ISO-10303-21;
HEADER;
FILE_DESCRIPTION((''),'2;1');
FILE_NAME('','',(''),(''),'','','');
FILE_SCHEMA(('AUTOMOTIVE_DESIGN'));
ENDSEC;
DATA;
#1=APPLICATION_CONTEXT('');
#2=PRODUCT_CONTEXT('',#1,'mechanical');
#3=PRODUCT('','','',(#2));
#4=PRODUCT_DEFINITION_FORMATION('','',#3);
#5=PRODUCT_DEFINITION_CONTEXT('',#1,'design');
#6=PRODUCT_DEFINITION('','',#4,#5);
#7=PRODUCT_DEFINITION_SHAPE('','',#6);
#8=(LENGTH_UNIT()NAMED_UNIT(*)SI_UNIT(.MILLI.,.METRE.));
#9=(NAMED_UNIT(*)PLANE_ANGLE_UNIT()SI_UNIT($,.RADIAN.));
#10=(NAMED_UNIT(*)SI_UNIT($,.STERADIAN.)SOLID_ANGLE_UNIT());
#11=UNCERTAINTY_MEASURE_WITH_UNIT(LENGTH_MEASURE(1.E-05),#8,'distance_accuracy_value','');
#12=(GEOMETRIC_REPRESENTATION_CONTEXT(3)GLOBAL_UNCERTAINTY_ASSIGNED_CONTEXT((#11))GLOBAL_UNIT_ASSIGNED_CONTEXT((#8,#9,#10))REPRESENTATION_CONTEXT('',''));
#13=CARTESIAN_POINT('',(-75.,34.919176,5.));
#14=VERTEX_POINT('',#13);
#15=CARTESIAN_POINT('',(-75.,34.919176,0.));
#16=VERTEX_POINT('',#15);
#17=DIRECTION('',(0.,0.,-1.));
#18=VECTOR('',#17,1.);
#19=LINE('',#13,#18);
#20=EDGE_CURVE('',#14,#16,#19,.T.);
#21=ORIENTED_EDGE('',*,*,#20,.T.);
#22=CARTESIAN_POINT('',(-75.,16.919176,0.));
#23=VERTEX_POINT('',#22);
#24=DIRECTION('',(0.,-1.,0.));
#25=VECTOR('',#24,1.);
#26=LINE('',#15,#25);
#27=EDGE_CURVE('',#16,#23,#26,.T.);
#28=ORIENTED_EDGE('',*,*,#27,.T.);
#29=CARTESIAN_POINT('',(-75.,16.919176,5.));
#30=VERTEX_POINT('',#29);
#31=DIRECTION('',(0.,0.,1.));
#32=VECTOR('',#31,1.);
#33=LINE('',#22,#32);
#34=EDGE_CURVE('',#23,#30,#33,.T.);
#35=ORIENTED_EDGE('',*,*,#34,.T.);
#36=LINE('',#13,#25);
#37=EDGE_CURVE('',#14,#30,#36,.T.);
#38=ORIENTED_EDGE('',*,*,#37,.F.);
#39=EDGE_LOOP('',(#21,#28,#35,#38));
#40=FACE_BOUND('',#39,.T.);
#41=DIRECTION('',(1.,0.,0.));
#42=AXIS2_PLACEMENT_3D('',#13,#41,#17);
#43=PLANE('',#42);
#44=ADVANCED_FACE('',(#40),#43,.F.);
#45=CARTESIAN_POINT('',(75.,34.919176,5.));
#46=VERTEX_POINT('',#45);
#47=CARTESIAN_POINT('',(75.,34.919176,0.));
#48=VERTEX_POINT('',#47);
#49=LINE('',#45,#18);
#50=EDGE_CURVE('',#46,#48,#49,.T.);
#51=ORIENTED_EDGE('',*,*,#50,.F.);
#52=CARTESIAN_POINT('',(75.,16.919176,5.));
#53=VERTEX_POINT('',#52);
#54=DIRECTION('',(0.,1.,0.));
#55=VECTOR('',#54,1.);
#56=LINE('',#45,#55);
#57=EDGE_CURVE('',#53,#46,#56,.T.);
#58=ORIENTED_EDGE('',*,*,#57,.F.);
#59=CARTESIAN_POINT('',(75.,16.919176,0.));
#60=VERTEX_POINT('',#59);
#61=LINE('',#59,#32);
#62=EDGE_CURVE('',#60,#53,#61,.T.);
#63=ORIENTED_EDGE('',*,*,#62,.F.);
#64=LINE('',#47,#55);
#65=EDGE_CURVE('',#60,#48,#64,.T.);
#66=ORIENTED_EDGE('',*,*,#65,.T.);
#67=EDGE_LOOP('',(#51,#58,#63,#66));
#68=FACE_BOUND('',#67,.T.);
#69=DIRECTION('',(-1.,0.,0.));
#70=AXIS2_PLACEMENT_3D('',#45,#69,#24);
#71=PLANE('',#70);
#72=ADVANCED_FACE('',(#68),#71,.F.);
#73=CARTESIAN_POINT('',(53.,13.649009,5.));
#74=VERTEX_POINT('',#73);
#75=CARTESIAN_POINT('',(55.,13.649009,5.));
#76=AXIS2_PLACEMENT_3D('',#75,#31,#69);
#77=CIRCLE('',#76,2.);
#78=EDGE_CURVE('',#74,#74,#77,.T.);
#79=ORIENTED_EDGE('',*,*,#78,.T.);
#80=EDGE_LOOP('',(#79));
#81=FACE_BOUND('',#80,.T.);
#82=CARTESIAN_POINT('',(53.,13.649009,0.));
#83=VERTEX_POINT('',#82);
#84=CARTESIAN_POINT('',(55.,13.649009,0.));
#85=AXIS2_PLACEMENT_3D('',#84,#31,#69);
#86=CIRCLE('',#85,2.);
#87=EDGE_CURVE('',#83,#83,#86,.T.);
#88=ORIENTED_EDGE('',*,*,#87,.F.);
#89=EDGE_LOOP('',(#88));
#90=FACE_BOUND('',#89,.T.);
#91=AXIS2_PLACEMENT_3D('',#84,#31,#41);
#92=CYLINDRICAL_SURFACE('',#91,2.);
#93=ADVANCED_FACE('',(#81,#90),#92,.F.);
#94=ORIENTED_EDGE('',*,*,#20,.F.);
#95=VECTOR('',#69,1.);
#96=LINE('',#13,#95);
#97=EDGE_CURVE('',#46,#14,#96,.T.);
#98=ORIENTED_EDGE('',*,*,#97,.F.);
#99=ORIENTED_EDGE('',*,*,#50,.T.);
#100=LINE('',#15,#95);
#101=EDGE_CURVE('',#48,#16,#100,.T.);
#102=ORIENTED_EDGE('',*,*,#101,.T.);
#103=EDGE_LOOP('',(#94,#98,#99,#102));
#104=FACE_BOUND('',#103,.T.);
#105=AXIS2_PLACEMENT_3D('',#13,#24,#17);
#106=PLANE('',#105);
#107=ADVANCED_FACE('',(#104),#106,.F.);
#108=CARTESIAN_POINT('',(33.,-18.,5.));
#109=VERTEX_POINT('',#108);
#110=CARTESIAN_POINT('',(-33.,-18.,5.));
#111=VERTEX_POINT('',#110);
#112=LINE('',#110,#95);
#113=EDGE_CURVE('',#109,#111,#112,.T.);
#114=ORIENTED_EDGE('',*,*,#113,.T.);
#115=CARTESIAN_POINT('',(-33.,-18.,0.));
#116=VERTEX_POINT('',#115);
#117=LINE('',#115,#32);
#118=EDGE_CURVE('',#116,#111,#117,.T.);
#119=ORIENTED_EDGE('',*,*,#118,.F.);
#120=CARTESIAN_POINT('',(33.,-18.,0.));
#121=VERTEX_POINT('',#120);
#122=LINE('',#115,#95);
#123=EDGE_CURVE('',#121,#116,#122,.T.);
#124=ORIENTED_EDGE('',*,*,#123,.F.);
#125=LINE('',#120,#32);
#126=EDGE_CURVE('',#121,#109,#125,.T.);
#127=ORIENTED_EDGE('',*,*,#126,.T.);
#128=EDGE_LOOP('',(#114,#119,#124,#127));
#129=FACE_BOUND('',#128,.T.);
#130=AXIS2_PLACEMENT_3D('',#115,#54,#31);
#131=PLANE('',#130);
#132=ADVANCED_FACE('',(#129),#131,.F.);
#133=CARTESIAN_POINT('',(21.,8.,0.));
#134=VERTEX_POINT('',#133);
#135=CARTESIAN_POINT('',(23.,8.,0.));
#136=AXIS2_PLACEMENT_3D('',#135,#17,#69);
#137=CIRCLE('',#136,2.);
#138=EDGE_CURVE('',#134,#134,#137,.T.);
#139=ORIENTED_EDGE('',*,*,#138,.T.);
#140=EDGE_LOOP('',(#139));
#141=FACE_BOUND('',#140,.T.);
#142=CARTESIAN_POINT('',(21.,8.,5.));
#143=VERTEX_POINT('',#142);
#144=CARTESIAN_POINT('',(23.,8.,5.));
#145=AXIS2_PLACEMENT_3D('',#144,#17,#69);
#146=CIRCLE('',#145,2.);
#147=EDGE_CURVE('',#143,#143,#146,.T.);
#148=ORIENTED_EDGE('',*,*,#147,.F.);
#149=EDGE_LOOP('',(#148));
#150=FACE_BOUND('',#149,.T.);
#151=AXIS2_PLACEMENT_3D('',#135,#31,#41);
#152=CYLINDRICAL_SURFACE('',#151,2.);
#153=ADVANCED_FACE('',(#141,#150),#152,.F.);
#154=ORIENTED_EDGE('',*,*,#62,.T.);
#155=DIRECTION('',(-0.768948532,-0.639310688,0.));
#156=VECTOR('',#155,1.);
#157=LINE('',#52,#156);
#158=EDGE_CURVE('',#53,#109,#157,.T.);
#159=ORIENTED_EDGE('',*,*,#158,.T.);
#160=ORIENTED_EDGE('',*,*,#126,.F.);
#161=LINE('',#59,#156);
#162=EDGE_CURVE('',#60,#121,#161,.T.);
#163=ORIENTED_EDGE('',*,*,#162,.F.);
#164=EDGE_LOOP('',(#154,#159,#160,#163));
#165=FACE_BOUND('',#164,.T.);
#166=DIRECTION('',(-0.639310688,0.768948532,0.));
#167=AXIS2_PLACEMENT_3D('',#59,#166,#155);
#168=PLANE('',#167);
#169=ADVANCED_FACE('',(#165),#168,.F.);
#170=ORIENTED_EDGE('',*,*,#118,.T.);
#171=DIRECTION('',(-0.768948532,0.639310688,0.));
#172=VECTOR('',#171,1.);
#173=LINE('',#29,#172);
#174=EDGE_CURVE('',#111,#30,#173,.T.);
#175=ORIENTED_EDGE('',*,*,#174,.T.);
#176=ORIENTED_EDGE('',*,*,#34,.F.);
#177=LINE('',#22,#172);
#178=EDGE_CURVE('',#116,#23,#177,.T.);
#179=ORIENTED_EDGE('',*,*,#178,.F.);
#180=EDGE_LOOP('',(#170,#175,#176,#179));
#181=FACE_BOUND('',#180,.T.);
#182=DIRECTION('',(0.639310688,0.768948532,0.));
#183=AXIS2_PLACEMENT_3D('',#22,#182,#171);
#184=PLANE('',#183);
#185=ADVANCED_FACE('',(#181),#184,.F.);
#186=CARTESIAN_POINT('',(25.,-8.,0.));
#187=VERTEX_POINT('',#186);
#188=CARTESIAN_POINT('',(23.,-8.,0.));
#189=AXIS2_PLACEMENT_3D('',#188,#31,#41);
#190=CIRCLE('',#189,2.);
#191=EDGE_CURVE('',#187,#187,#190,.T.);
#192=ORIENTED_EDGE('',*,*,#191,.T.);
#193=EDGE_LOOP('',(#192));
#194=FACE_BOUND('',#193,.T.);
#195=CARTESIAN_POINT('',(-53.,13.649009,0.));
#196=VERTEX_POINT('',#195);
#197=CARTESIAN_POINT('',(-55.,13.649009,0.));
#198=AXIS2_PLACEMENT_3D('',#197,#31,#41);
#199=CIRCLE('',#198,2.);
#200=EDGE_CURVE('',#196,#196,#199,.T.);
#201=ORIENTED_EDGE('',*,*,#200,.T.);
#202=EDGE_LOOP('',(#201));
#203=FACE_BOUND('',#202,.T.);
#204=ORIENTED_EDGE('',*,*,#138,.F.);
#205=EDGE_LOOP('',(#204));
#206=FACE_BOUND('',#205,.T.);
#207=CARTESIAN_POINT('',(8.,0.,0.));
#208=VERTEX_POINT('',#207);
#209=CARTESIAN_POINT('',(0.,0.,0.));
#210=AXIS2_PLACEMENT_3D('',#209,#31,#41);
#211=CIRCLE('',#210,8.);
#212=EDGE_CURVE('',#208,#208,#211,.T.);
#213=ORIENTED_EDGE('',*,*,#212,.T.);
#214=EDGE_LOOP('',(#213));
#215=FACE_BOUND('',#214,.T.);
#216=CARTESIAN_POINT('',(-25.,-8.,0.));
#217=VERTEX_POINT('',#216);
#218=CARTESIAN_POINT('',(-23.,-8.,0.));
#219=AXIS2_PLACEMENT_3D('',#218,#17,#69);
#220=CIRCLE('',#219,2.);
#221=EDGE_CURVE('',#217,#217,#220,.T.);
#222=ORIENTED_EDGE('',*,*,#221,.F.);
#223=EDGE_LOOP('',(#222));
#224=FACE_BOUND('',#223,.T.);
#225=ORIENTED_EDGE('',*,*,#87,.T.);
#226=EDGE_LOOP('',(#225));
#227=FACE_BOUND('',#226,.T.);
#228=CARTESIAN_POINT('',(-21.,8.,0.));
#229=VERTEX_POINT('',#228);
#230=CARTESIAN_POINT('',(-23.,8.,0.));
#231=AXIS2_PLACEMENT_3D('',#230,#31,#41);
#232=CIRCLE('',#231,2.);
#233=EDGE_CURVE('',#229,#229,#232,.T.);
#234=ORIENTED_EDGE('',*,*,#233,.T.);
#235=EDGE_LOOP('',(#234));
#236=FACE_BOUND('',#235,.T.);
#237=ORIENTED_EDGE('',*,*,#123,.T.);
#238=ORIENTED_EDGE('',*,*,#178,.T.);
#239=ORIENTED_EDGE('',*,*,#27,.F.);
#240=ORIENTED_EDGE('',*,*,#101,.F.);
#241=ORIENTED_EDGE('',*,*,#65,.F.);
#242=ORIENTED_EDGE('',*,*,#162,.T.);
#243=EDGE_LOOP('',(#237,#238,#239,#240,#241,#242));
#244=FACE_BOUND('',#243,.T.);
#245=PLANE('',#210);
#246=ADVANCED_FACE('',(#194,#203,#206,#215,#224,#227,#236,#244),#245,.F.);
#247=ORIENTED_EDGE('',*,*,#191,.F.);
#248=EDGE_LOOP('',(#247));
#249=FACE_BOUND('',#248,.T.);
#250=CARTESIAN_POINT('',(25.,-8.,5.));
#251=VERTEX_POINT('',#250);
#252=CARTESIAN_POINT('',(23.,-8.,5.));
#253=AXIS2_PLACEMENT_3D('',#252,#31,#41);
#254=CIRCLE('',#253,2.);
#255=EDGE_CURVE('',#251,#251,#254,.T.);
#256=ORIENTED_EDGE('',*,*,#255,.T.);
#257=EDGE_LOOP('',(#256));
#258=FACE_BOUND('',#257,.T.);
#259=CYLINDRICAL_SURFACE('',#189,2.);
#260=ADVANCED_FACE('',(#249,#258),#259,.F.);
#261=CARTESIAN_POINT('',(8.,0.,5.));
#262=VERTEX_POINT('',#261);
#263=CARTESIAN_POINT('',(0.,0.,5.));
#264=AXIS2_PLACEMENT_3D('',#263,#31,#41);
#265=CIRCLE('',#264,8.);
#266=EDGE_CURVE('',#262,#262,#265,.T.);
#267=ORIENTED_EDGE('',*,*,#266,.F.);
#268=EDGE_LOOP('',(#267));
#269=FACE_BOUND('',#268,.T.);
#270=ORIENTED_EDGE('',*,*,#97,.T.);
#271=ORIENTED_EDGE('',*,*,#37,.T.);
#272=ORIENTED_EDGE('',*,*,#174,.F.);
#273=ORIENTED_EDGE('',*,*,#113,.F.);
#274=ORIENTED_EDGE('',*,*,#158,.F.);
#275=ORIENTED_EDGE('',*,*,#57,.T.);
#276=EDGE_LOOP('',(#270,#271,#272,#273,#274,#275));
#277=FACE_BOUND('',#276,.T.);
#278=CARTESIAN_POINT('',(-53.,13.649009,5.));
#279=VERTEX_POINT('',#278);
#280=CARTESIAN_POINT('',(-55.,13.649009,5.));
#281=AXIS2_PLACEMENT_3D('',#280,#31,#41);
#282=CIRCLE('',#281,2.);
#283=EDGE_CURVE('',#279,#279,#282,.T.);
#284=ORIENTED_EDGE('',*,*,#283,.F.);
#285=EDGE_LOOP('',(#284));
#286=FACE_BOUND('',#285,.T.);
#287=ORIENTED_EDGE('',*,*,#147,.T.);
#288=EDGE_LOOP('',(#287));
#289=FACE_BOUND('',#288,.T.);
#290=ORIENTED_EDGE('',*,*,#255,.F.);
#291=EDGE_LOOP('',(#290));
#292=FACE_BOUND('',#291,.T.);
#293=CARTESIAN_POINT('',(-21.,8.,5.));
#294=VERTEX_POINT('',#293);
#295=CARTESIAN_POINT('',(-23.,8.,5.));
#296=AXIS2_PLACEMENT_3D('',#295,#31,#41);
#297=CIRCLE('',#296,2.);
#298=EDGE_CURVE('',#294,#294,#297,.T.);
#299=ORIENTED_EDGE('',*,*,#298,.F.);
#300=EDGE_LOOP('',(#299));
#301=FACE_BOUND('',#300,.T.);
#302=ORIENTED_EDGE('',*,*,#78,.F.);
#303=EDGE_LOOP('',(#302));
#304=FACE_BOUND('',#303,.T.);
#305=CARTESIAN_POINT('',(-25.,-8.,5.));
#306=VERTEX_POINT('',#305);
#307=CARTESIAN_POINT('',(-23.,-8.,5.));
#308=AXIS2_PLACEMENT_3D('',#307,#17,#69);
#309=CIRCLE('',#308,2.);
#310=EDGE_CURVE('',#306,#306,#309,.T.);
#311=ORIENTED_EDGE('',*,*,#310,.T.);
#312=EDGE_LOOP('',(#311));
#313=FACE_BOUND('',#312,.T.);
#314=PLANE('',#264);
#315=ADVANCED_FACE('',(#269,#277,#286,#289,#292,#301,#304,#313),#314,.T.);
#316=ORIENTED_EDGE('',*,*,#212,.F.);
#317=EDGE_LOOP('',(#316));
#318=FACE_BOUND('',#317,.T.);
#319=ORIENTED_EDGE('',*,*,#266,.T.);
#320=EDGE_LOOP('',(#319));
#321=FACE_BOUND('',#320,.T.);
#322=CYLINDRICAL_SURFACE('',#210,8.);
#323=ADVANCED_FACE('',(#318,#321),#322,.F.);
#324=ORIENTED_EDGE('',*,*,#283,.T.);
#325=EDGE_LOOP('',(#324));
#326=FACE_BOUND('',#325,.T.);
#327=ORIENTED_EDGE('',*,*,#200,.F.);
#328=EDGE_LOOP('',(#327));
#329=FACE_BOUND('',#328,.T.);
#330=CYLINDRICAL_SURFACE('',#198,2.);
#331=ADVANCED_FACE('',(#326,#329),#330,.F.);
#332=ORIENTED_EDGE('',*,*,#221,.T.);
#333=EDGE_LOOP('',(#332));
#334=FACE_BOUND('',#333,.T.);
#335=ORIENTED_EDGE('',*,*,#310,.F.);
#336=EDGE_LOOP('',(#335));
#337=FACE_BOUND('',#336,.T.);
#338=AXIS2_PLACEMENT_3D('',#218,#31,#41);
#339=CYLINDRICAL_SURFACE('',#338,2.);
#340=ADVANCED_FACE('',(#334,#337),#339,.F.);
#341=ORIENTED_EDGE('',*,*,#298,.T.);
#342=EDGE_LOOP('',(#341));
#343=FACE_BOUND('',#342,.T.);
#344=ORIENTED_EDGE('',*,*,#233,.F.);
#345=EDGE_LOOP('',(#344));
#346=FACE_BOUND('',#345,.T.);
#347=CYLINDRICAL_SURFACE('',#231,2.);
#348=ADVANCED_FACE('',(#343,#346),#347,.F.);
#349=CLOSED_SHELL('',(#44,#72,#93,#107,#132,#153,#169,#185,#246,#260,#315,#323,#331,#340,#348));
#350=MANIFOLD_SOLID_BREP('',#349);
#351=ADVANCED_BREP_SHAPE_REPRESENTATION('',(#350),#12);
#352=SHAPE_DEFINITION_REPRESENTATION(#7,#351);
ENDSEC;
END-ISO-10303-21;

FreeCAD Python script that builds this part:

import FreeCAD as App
import Part
import Sketcher

V = App.Vector

doc = App.newDocument("Part")
body = doc.addObject("PartDesign::Body", "Body")

# Sketch on XY plane
sketch1 = body.newObject("Sketcher::SketchObject", "Sketch")
sketch1.AttachmentSupport = (doc.getObject("XY_Plane"), [""])
sketch1.MapMode = "FlatFace"
sketch1.addGeometry([
    Part.LineSegment(V(-75, 35, 0), V(-75, -35, 0)),
    Part.LineSegment(V(-75, -35, 0), V(75, -35, 0)),
    Part.LineSegment(V(75, -35, 0), V(75, 35, 0)),
    Part.LineSegment(V(75, 35, 0), V(-75, 35, 0)),
], False)
sketch1.addConstraint([
    Sketcher.Constraint("Coincident", 0, 2, 1, 1),
    Sketcher.Constraint("Coincident", 1, 2, 2, 1),
    Sketcher.Constraint("Coincident", 2, 2, 3, 1),
    Sketcher.Constraint("Coincident", 3, 2, 0, 1),
    Sketcher.Constraint("Vertical", 0),
    Sketcher.Constraint("Horizontal", 1),
    Sketcher.Constraint("Vertical", 2),
    Sketcher.Constraint("Horizontal", 3),
    Sketcher.Constraint("DistanceX", 1, 1, 1, 2, 150.0),
    Sketcher.Constraint("DistanceY", 0, 2, 0, 1, 70.0),
    Sketcher.Constraint("DistanceX", 0, 2, -1, 1, 75.0),
    Sketcher.Constraint("DistanceY", 0, 2, -1, 1, 35.080824),
])
pad1 = body.newObject("PartDesign::Pad", "Pad")
pad1.Profile = sketch1
pad1.Length = 5

# Sketch on XY plane
sketch2 = body.newObject("Sketcher::SketchObject", "Sketch001")
sketch2.AttachmentSupport = (doc.getObject("XY_Plane"), [""])
sketch2.MapMode = "FlatFace"
sketch2.AttachmentOffset = App.Placement(V(0, 0, 5), App.Rotation())
sketch2.addGeometry(Part.Circle(V(0, 0, 0), V(0, 0, 1), 8), False)
sketch2.addConstraint([
    Sketcher.Constraint("Coincident", 0, 3, -1, 1),
    Sketcher.Constraint("Diameter", 0, 16.0),
])
pocket1 = body.newObject("PartDesign::Pocket", "Pocket")
pocket1.Profile = sketch2
pocket1.Type = "ThroughAll"

# Sketch on XY plane
sketch3 = body.newObject("Sketcher::SketchObject", "Sketch002")
sketch3.AttachmentSupport = (doc.getObject("XY_Plane"), [""])
sketch3.MapMode = "FlatFace"
sketch3.AttachmentOffset = App.Placement(V(0, 0, 5), App.Rotation())
sketch3.addGeometry([
    Part.Circle(V(-23, 8, 0), V(0, 0, 1), 2),
    Part.Circle(V(-23, -8, 0), V(0, 0, 1), 2),
    Part.Circle(V(23, -8, 0), V(0, 0, 1), 2),
    Part.Circle(V(23, 8, 0), V(0, 0, 1), 2),
], False)
sketch3.addConstraint([
    Sketcher.Constraint("Equal", 0, 1),
    Sketcher.Constraint("Equal", 1, 2),
    Sketcher.Constraint("Equal", 2, 3),
    Sketcher.Constraint("Symmetric", 0, 3, 2, 3, -1, 1),
    Sketcher.Constraint("Symmetric", 1, 3, 3, 3, -1, 1),
    Sketcher.Constraint("Symmetric", 1, 3, 2, 3, -2),
    Sketcher.Constraint("Diameter", 0, 4.0),
    Sketcher.Constraint("DistanceX", 0, 3, -1, 1, 23.0),
    Sketcher.Constraint("DistanceY", -1, 1, 0, 3, 8.0),
])
pocket2 = body.newObject("PartDesign::Pocket", "Pocket001")
pocket2.Profile = sketch3
pocket2.Type = "ThroughAll"

# Sketch on XY plane
sketch4 = body.newObject("Sketcher::SketchObject", "Sketch003")
sketch4.AttachmentSupport = (doc.getObject("XY_Plane"), [""])
sketch4.MapMode = "FlatFace"
sketch4.AttachmentOffset = App.Placement(V(0, 0, 5), App.Rotation())
sketch4.addGeometry([
    Part.Circle(V(-55, 13.6, 0), V(0, 0, 1), 2),
    Part.Circle(V(-65, -25.1, 0), V(0, 0, 1), 2),
    Part.Circle(V(65, -25.1, 0), V(0, 0, 1), 2),
    Part.Circle(V(55, 13.6, 0), V(0, 0, 1), 2),
], False)
sketch4.addConstraint([
    Sketcher.Constraint("Equal", 0, 1),
    Sketcher.Constraint("Equal", 1, 2),
    Sketcher.Constraint("Equal", 2, 3),
    Sketcher.Constraint("Symmetric", 1, 3, 2, 3, -2),
    Sketcher.Constraint("Symmetric", 0, 3, 3, 3, -2),
    Sketcher.Constraint("Diameter", 0, 4.0),
    Sketcher.Constraint("DistanceX", 0, 3, -1, 1, 55.0),
    Sketcher.Constraint("DistanceX", 1, 3, -1, 1, 65.0),
    Sketcher.Constraint("DistanceY", -1, 1, 0, 3, 13.649009),
    Sketcher.Constraint("DistanceY", 1, 3, -1, 1, 25.080824),
])
pocket3 = body.newObject("PartDesign::Pocket", "Pocket002")
pocket3.Profile = sketch4
pocket3.Type = "ThroughAll"

# Sketch on XY plane
sketch5 = body.newObject("Sketcher::SketchObject", "Sketch004")
sketch5.AttachmentSupport = (doc.getObject("XY_Plane"), [""])
sketch5.MapMode = "FlatFace"
sketch5.AttachmentOffset = App.Placement(V(0, 0, 5), App.Rotation())
sketch5.addGeometry([
    Part.LineSegment(V(-33, -18, 0), V(-75, 17, 0)),  # 0
    Part.LineSegment(V(-75, 17, 0), V(-75, -35, 0)),  # 1
    Part.LineSegment(V(-75, -35, 0), V(75, -35, 0)),  # 2
    Part.LineSegment(V(75, -35, 0), V(75, 17, 0)),  # 3
    Part.LineSegment(V(75, 17, 0), V(33, -18, 0)),  # 4
    Part.LineSegment(V(33, -18, 0), V(-33, -18, 0)),  # 5
], False)
sketch5.addConstraint([
    Sketcher.Constraint("Coincident", 0, 2, 1, 1),
    Sketcher.Constraint("Coincident", 1, 2, 2, 1),
    Sketcher.Constraint("Coincident", 2, 2, 3, 1),
    Sketcher.Constraint("Coincident", 3, 2, 4, 1),
    Sketcher.Constraint("Coincident", 4, 2, 5, 1),
    Sketcher.Constraint("Coincident", 5, 2, 0, 1),
    Sketcher.Constraint("Vertical", 1),
    Sketcher.Constraint("Horizontal", 2),
    Sketcher.Constraint("Vertical", 3),
    Sketcher.Constraint("Horizontal", 5),
    Sketcher.Constraint("Symmetric", 0, 2, 3, 2, -2),
    Sketcher.Constraint("Equal", 0, 4),
    Sketcher.Constraint("DistanceX", 2, 1, 2, 2, 150.0),
    Sketcher.Constraint("DistanceX", 5, 2, 5, 1, 66.0),
    Sketcher.Constraint("DistanceY", 1, 2, 1, 1, 52.0),
    Sketcher.Constraint("DistanceY", 4, 2, -1, 1, 18.0),
    Sketcher.Constraint("Distance", 0, 54.620041),
])
pocket4 = body.newObject("PartDesign::Pocket", "Pocket003")
pocket4.Profile = sketch5
pocket4.Type = "ThroughAll"

doc.recompute()
